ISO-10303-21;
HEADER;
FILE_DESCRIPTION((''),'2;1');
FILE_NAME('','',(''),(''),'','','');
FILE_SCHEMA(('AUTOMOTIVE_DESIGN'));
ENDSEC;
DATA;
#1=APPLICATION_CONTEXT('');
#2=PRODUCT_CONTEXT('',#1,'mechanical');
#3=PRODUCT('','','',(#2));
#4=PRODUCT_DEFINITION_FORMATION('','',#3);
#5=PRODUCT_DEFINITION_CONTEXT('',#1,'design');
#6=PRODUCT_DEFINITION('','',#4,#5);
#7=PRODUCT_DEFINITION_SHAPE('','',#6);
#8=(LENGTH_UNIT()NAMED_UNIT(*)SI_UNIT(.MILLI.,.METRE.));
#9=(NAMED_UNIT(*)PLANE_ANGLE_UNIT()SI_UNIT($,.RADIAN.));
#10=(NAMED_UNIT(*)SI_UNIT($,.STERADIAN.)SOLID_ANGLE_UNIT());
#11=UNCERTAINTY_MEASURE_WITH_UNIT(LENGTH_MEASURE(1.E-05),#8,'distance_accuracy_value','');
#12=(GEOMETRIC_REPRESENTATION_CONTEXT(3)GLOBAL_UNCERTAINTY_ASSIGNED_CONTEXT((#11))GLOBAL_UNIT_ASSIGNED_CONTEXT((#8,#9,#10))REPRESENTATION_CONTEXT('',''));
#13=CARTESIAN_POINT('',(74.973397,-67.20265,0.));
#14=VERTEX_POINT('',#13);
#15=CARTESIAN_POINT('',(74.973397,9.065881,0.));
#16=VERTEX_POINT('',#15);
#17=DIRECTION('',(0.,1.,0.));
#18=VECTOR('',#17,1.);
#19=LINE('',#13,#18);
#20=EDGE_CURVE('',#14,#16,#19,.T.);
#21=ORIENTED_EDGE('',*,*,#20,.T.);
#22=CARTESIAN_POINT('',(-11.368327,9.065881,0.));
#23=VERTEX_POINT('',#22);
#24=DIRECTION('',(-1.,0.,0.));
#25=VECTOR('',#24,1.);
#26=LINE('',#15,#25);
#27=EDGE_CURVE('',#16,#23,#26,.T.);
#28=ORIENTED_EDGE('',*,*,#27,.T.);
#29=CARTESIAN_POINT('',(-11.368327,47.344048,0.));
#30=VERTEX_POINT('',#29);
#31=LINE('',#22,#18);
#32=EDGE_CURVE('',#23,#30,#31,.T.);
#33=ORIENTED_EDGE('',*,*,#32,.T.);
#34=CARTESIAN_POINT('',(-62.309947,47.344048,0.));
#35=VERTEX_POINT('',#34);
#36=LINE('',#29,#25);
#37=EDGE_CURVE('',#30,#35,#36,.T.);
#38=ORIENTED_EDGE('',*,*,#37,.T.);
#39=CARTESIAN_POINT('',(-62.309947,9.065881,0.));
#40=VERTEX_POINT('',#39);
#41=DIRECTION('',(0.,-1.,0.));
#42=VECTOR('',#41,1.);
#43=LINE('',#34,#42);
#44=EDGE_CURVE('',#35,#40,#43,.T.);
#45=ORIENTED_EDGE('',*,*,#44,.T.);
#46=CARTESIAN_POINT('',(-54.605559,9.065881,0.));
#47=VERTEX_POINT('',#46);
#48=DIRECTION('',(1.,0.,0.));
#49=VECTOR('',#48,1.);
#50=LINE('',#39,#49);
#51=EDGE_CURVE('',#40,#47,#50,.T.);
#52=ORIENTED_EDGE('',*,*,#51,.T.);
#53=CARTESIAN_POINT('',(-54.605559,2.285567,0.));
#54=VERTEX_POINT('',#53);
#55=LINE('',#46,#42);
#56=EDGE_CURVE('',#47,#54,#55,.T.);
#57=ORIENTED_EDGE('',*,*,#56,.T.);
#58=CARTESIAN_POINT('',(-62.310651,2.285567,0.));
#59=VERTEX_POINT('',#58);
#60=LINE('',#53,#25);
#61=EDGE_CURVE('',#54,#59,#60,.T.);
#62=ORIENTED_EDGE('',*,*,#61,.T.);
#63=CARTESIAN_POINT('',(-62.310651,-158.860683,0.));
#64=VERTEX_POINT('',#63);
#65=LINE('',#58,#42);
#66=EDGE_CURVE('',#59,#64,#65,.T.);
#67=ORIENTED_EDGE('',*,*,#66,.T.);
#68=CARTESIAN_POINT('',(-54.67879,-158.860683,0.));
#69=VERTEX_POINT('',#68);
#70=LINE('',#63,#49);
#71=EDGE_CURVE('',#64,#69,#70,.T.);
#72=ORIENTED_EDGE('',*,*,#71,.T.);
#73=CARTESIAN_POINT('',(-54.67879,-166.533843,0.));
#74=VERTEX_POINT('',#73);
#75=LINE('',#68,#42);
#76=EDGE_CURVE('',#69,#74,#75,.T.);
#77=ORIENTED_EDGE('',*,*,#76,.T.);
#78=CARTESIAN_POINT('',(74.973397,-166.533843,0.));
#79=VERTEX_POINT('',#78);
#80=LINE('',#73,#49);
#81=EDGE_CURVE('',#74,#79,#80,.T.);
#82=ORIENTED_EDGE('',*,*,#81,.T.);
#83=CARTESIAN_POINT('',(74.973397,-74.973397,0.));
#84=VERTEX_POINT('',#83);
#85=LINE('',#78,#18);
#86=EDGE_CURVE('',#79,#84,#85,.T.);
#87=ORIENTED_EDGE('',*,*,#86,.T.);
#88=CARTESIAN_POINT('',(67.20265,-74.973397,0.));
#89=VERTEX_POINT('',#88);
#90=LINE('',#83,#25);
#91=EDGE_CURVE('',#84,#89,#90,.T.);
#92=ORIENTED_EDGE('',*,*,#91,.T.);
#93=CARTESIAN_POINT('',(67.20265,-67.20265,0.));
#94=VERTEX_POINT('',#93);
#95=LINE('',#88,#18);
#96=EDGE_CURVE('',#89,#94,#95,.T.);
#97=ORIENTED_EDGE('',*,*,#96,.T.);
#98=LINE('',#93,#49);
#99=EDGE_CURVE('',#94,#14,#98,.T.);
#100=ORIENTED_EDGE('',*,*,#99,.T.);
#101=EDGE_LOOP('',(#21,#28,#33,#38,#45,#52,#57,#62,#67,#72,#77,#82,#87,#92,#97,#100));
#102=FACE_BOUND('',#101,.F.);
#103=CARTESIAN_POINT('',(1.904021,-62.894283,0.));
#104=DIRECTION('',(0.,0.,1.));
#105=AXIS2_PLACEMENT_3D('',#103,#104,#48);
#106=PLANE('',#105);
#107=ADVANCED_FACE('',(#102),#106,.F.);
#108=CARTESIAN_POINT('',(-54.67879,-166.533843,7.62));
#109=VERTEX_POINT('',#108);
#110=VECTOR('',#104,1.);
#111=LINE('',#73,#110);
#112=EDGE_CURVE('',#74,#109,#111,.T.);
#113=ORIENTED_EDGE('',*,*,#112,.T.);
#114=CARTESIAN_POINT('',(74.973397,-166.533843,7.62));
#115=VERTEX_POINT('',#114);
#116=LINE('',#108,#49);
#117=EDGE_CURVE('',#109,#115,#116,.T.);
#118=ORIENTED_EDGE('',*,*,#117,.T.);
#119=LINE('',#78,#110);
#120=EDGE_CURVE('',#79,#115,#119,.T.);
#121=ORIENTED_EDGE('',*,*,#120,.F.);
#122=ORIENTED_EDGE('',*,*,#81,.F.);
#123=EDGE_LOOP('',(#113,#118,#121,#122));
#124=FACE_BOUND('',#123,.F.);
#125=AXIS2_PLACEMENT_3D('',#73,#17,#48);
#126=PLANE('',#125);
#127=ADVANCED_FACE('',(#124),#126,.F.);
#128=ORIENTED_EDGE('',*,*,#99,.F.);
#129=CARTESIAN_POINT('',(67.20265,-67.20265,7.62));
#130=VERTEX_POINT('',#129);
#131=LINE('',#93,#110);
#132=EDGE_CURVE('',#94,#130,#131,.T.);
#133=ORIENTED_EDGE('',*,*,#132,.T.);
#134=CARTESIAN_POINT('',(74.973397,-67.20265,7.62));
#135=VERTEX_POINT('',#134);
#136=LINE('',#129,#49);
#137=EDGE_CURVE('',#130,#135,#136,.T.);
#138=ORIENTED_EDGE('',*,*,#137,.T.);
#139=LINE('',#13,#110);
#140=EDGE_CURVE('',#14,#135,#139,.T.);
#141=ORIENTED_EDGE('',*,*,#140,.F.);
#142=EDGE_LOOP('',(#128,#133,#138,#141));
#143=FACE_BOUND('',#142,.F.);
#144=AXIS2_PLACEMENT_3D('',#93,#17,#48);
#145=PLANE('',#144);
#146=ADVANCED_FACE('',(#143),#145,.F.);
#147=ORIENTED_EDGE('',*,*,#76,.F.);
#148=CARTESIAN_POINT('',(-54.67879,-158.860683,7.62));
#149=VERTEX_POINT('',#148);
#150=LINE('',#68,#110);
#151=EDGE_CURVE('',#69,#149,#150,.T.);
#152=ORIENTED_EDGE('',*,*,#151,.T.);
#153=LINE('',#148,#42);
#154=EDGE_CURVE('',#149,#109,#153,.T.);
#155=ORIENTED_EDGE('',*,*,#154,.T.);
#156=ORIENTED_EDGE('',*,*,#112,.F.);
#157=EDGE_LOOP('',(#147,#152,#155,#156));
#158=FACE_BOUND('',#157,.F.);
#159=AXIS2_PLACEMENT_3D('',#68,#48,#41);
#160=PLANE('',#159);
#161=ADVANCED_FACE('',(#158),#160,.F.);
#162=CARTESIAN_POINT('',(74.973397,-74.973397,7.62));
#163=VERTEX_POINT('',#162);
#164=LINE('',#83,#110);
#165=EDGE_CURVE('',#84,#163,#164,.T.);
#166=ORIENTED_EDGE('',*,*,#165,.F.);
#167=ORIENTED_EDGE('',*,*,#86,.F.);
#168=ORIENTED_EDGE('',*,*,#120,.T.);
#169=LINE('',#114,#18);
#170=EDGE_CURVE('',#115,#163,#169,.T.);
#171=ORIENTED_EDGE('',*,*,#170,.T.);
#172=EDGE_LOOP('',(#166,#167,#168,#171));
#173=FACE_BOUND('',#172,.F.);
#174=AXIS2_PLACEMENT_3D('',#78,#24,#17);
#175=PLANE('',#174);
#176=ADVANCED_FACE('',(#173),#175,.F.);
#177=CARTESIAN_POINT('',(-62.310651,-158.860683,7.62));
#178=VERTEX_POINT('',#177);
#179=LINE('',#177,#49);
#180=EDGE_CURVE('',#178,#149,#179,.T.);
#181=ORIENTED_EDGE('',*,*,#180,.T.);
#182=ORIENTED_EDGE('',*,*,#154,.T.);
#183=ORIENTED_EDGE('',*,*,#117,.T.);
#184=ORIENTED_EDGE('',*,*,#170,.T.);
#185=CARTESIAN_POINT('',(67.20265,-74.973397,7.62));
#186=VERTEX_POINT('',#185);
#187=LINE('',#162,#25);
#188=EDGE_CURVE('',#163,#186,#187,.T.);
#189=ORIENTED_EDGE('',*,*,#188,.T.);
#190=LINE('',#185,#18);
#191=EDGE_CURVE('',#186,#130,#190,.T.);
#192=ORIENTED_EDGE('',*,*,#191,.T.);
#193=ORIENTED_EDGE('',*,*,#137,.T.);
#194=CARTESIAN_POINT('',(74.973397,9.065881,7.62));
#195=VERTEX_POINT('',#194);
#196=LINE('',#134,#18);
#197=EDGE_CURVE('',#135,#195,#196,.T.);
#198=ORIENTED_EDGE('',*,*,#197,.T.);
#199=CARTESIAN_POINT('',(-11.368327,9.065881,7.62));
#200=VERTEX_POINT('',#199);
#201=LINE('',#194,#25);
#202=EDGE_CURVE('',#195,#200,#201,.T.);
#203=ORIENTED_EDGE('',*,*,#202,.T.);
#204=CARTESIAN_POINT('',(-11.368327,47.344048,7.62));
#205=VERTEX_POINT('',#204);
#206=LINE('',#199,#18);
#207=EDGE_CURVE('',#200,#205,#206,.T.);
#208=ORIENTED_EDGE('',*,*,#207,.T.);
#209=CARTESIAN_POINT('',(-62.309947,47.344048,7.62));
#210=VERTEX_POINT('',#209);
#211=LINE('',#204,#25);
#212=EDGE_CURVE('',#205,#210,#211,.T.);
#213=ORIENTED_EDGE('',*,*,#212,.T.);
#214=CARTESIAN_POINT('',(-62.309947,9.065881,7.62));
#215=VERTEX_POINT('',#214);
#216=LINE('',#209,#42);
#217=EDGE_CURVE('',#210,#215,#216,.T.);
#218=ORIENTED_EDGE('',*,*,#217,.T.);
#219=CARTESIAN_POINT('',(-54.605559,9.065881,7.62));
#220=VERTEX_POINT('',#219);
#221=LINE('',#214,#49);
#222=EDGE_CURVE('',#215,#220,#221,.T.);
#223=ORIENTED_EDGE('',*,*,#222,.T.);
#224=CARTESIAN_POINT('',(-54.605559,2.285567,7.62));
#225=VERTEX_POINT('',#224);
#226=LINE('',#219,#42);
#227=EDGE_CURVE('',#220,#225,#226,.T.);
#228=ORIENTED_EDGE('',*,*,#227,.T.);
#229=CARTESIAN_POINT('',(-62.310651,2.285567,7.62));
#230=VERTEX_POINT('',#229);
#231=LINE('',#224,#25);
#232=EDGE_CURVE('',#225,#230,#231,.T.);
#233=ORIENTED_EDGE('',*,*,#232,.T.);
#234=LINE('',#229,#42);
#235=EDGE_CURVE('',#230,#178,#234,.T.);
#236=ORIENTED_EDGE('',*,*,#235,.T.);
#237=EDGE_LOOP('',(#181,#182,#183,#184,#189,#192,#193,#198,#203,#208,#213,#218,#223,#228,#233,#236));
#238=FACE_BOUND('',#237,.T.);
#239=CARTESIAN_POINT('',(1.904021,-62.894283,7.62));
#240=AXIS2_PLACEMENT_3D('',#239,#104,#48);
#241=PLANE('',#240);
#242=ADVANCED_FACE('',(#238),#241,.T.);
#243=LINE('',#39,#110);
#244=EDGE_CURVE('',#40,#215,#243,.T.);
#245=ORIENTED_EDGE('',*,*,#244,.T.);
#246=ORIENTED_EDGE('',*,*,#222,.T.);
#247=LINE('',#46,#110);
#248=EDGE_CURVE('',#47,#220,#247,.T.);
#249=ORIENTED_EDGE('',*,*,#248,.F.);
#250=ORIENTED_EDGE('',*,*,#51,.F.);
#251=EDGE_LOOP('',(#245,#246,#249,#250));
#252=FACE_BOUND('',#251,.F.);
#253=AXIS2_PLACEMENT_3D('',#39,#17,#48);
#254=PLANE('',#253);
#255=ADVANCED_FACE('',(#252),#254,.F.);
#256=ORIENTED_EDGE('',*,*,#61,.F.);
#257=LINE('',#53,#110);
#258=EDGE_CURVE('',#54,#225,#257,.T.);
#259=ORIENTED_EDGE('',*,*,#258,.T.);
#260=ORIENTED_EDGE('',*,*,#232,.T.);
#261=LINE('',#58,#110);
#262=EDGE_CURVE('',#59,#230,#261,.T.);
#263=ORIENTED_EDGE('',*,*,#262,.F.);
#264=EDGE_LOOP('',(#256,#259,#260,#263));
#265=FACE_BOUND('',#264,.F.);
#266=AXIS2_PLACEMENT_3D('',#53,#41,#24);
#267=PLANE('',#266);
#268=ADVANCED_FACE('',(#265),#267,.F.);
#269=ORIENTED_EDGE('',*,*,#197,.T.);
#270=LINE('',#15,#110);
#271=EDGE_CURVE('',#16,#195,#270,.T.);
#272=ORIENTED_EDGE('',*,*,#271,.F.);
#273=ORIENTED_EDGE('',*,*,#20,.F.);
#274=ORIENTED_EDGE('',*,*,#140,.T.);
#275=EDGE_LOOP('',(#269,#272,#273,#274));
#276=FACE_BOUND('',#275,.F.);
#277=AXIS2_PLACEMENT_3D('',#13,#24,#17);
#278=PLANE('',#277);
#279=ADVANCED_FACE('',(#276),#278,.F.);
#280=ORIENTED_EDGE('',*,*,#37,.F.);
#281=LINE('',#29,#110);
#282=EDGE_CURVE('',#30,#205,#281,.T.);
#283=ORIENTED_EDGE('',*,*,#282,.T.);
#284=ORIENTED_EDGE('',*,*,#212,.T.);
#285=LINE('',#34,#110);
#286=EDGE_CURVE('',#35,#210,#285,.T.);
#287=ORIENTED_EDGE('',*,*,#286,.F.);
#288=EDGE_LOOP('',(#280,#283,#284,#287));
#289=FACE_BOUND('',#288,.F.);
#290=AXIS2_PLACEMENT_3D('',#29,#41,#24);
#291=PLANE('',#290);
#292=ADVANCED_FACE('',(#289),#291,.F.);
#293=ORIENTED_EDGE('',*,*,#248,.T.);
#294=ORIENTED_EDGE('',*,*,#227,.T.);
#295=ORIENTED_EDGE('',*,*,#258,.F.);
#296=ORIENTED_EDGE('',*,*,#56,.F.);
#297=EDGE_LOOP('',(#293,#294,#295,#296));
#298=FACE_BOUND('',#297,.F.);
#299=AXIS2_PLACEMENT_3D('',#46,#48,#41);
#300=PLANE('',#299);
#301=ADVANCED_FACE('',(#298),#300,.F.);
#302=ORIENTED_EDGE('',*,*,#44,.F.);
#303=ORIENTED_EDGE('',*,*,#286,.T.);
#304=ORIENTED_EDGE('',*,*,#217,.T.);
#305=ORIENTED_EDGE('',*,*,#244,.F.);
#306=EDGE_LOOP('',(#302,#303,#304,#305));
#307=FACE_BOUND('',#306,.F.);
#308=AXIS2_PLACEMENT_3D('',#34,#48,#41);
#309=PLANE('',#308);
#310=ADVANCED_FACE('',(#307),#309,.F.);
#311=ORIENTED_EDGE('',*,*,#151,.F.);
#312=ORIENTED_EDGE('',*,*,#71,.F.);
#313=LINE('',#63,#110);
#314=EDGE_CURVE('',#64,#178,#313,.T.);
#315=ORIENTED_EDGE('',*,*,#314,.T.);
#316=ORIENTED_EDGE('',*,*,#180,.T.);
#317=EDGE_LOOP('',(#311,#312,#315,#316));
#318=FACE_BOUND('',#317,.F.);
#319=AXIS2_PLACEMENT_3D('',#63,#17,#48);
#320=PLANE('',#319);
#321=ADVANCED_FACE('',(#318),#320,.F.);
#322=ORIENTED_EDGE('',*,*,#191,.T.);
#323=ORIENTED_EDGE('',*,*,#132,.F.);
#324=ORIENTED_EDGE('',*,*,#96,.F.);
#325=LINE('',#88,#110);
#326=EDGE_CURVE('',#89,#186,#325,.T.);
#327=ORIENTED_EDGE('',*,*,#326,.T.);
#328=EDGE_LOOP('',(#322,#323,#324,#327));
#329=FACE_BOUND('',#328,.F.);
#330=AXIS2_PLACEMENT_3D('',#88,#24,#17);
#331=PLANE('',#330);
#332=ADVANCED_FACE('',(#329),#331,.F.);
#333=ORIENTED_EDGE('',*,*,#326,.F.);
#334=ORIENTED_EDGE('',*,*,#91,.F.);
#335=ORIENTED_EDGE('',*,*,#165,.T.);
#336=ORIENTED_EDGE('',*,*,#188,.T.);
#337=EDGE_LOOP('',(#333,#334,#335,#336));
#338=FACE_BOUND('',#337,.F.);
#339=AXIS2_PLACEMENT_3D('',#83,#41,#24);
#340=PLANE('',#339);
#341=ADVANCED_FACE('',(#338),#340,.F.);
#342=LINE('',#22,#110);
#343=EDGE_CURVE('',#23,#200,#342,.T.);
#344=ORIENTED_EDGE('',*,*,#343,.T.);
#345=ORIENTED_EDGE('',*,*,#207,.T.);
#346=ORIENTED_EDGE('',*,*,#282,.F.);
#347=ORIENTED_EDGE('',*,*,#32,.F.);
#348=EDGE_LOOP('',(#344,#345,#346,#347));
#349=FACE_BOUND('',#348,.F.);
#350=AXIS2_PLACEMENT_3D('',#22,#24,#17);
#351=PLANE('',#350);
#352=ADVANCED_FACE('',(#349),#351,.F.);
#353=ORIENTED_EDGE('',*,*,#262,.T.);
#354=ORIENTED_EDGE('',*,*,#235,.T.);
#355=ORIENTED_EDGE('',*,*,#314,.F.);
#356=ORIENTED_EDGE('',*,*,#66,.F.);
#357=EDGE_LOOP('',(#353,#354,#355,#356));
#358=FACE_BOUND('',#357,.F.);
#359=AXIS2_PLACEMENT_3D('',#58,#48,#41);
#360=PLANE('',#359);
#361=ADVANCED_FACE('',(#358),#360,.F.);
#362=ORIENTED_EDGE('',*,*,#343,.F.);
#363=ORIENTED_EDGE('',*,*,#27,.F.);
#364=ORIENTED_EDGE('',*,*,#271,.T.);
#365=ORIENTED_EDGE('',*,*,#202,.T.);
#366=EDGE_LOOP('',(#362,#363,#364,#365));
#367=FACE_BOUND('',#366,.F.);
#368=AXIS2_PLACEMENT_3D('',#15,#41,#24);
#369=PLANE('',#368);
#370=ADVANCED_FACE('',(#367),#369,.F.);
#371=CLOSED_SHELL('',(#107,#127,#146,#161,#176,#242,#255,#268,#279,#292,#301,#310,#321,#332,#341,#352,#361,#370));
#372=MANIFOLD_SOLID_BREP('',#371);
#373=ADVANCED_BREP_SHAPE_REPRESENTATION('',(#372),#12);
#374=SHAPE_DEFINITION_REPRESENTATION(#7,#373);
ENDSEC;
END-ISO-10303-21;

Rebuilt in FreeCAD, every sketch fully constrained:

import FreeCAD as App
import Part
import Sketcher
Q = App.Units.Quantity


def add_polygon(sketch, points):
    """Adds a closed chain of lines whose ends are joined by coincident constraints."""
    first, n = sketch.GeometryCount, len(points)
    for a, b in zip(points, points[1:] + points[:1]):
        sketch.addGeometry(Part.LineSegment(App.Vector(*a, 0), App.Vector(*b, 0)), False)
    for i in range(n):
        sketch.addConstraint(Sketcher.Constraint("Coincident", first + i, 2, first + (i + 1) % n, 1))

doc = App.newDocument("Part")
body = doc.addObject("PartDesign::Body", "Body")

# Sketch on XY plane
sketch1 = doc.addObject("Sketcher::SketchObject", "Sketch")
body.addObject(sketch1)
sketch1.AttachmentSupport = (doc.XY_Plane, [""])
sketch1.MapMode = "FlatFace"
add_polygon(sketch1, [(-11, 47), (-62, 47), (-62, 9), (-55, 9), (-55, 2), (-62, 2), (-62, -159), (-55, -159), (-55, -167), (75, -167), (75, -75), (67, -75), (67, -67), (75, -67), (75, 9), (-11, 9)])  # lines 0-15
sketch1.addConstraint(Sketcher.Constraint("Horizontal", 0))
sketch1.addConstraint(Sketcher.Constraint("Vertical", 1))
sketch1.addConstraint(Sketcher.Constraint("Horizontal", 2))
sketch1.addConstraint(Sketcher.Constraint("Vertical", 3))
sketch1.addConstraint(Sketcher.Constraint("Horizontal", 4))
sketch1.addConstraint(Sketcher.Constraint("Vertical", 5))
sketch1.addConstraint(Sketcher.Constraint("Horizontal", 6))
sketch1.addConstraint(Sketcher.Constraint("Vertical", 7))
sketch1.addConstraint(Sketcher.Constraint("Horizontal", 8))
sketch1.addConstraint(Sketcher.Constraint("Vertical", 9))
sketch1.addConstraint(Sketcher.Constraint("Horizontal", 10))
sketch1.addConstraint(Sketcher.Constraint("Vertical", 11))
sketch1.addConstraint(Sketcher.Constraint("Horizontal", 12))
sketch1.addConstraint(Sketcher.Constraint("Vertical", 13))
sketch1.addConstraint(Sketcher.Constraint("Horizontal", 14))
sketch1.addConstraint(Sketcher.Constraint("Vertical", 15))
sketch1.addConstraint(Sketcher.Constraint("Horizontal", 2, 2, 13, 2))
sketch1.addConstraint(Sketcher.Constraint("Vertical", 9, 2, 12, 2))
sketch1.addConstraint(Sketcher.Constraint("Equal", 12, 11))
sketch1.addConstraint(Sketcher.Constraint("DistanceX", 0, 2, 0, 1, Q("50.94162 mm")))
sketch1.addConstraint(Sketcher.Constraint("DistanceX", 2, 1, 2, 2, Q("7.704388 mm")))
sketch1.addConstraint(Sketcher.Constraint("DistanceX", 6, 1, 6, 2, Q("7.631861 mm")))
sketch1.addConstraint(Sketcher.Constraint("DistanceY", 5, 2, 5, 1, Q("161.14625 mm")))
sketch1.addConstraint(Sketcher.Constraint("DistanceY", 7, 2, 7, 1, Q("7.67316 mm")))
sketch1.addConstraint(Sketcher.Constraint("DistanceY", 13, 1, 13, 2, Q("76.268531 mm")))
sketch1.addConstraint(Sketcher.Constraint("DistanceX", 4, 2, 4, 1, Q("7.705092 mm")))
sketch1.addConstraint(Sketcher.Constraint("DistanceX", 8, 1, 8, 2, Q("129.652187 mm")))
sketch1.addConstraint(Sketcher.Constraint("DistanceX", 10, 2, 10, 1, Q("7.770747 mm")))
sketch1.addConstraint(Sketcher.Constraint("DistanceY", 1, 2, 1, 1, Q("38.278167 mm")))
sketch1.addConstraint(Sketcher.Constraint("DistanceY", 3, 2, 3, 1, Q("6.780314 mm")))
sketch1.addConstraint(Sketcher.Constraint("DistanceY", -1, 1, 1, 2, Q("9.065881 mm")))
sketch1.addConstraint(Sketcher.Constraint("DistanceX", 2, 2, -1, 1, Q("54.605559 mm")))
pad1 = doc.addObject("PartDesign::Pad", "Pad")
body.addObject(pad1)
pad1.Profile = sketch1
pad1.Length = Q("0.3 in")

doc.recompute()
